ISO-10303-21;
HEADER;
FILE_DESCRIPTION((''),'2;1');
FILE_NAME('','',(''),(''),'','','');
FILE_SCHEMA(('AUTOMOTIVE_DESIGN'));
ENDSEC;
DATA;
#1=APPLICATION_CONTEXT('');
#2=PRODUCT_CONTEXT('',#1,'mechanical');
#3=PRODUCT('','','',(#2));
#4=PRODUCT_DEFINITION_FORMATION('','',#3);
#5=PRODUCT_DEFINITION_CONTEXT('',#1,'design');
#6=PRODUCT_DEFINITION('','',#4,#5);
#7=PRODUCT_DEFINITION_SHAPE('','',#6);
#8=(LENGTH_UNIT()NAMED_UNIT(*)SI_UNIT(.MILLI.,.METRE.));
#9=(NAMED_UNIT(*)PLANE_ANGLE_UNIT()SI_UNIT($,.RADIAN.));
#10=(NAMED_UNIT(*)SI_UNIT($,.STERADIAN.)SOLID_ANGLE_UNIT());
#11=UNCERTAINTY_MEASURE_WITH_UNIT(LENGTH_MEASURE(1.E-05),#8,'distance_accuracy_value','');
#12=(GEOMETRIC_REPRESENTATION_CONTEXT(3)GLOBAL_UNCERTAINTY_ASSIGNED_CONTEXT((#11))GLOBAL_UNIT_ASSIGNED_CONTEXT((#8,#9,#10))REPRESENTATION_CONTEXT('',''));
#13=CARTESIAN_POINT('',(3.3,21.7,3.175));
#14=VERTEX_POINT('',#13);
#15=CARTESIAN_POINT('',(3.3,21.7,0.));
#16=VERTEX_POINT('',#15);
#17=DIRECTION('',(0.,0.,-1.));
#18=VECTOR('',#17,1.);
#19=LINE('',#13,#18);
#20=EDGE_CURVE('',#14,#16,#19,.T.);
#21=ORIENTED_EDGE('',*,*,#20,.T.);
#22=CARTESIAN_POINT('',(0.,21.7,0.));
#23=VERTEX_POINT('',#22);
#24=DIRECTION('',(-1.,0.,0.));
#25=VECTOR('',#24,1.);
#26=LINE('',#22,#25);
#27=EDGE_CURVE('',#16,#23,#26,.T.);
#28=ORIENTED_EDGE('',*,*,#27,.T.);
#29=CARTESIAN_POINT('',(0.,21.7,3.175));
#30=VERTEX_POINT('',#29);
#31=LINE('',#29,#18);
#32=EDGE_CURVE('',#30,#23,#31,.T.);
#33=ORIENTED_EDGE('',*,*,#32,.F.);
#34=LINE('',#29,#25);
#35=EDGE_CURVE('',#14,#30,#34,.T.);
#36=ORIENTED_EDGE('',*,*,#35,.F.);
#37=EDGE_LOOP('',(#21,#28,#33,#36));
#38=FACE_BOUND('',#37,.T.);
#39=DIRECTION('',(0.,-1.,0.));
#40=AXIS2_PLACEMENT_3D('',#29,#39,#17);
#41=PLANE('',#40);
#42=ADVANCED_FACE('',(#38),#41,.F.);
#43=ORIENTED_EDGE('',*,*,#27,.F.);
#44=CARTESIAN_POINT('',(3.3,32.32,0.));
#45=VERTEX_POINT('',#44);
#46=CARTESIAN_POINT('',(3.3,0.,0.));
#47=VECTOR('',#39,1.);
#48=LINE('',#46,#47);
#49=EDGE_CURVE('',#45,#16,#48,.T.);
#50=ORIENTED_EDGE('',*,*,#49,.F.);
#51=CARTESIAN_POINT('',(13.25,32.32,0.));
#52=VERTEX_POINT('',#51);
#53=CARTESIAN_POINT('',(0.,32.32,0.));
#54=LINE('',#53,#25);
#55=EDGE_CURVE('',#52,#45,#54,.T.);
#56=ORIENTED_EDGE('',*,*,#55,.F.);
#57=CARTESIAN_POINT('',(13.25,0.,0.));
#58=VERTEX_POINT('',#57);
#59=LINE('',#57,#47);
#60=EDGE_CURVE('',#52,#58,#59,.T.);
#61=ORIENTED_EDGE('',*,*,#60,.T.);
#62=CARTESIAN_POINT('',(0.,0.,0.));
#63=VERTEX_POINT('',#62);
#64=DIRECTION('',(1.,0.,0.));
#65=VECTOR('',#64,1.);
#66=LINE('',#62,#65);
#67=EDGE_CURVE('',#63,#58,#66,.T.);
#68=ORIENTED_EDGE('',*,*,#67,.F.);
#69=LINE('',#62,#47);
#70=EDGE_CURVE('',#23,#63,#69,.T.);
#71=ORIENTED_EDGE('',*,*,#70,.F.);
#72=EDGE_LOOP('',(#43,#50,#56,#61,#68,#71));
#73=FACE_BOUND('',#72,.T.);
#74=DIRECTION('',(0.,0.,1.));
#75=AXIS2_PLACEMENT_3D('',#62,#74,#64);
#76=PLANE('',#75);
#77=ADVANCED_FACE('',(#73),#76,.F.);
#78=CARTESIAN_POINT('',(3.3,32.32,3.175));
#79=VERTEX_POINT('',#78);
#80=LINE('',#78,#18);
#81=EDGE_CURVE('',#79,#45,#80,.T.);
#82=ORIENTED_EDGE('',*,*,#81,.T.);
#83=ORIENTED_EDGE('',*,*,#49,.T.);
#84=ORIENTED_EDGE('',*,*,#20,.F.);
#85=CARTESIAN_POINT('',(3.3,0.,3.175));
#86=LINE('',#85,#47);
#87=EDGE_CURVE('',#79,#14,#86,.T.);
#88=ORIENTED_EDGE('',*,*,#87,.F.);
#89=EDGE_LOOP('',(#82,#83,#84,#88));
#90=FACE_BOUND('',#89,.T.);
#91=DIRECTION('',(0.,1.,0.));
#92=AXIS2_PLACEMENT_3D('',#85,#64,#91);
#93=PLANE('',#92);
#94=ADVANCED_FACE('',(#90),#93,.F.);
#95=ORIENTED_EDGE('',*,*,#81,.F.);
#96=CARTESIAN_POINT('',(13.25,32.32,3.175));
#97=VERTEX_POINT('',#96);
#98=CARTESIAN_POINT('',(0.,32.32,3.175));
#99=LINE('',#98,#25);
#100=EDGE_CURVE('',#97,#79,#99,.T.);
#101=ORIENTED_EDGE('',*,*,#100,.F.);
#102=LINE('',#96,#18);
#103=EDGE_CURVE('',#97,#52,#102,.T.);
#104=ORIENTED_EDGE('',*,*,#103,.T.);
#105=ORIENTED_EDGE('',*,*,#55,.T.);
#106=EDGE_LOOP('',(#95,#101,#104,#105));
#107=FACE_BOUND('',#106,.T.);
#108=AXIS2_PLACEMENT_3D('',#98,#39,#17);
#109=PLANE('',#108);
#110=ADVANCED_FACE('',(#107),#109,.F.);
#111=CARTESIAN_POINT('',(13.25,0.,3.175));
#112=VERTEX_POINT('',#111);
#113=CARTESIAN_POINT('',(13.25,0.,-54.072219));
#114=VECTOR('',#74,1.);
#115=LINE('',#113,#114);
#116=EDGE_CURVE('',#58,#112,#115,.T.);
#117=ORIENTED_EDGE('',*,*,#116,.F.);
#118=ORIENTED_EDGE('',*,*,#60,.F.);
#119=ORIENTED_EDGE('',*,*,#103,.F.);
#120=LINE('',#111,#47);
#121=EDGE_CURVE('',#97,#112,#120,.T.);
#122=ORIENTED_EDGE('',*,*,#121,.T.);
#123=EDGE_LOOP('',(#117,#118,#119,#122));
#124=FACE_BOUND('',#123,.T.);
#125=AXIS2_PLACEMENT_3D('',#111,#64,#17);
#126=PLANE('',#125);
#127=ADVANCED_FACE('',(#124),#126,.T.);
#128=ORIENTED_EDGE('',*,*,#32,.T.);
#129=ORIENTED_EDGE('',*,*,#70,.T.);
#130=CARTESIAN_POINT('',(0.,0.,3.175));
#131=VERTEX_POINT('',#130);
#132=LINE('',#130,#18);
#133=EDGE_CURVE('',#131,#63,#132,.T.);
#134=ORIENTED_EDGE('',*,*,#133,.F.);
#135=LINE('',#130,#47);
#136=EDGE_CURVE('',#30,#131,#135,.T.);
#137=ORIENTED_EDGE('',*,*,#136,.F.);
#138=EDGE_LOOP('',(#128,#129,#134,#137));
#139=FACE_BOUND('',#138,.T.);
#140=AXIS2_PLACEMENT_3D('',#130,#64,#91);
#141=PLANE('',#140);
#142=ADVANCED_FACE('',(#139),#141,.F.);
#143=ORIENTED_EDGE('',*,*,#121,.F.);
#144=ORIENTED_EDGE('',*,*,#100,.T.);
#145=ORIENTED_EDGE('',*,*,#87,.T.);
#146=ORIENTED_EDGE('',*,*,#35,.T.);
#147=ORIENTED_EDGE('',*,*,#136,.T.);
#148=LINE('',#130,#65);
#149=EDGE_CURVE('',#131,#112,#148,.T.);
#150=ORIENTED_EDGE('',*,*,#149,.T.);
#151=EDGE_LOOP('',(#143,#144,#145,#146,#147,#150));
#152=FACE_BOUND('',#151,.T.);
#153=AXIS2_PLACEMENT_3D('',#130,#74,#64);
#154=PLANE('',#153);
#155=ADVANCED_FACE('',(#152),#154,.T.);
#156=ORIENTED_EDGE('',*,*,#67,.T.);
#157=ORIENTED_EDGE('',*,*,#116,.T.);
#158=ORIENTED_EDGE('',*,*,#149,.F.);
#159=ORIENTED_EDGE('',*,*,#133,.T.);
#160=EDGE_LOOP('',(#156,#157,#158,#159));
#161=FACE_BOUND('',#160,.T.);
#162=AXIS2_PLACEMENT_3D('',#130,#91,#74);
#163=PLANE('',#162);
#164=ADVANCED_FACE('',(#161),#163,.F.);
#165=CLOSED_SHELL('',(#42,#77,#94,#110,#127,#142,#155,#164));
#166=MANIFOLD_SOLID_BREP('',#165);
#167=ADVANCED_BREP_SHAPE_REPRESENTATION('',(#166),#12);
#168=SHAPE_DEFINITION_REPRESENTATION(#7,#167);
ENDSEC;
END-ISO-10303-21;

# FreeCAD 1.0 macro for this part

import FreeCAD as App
import Part
import Sketcher
Q = App.Units.Quantity

doc = App.newDocument("Part")
body = doc.addObject("PartDesign::Body", "Body")

# Sketch on XY plane
sketch1 = body.newObject("Sketcher::SketchObject", "Sketch")
sketch1.AttachmentSupport = (doc.getObject("XY_Plane"), [""])
sketch1.MapMode = "FlatFace"
sketch1.addGeometry([
    Part.LineSegment(App.Vector(0, 21.7, 0), App.Vector(0, 0, 0)),  # 0
    Part.LineSegment(App.Vector(0, 0, 0), App.Vector(56.6, 0, 0)),  # 1
    Part.LineSegment(App.Vector(56.6, 0, 0), App.Vector(56.6, 21.7, 0)),  # 2
    Part.LineSegment(App.Vector(56.6, 21.7, 0), App.Vector(53.3, 21.7, 0)),  # 3
    Part.LineSegment(App.Vector(53.3, 21.7, 0), App.Vector(53.3, 32.32, 0)),  # 4
    Part.LineSegment(App.Vector(53.3, 32.32, 0), App.Vector(43.35, 32.32, 0)),  # 5
    Part.LineSegment(App.Vector(43.35, 32.32, 0), App.Vector(43.35, 15.66, 0)),  # 6
    Part.LineSegment(App.Vector(43.35, 15.66, 0), App.Vector(13.25, 15.66, 0)),  # 7
    Part.LineSegment(App.Vector(13.25, 15.66, 0), App.Vector(13.25, 32.32, 0)),  # 8
    Part.LineSegment(App.Vector(13.25, 32.32, 0), App.Vector(3.3, 32.32, 0)),  # 9
    Part.LineSegment(App.Vector(3.3, 32.32, 0), App.Vector(3.3, 21.7, 0)),  # 10
    Part.LineSegment(App.Vector(3.3, 21.7, 0), App.Vector(0, 21.7, 0)),  # 11
], False)
sketch1.addConstraint([
    Sketcher.Constraint("Coincident", 0, 2, 1, 1),
    Sketcher.Constraint("Coincident", 1, 2, 2, 1),
    Sketcher.Constraint("Coincident", 2, 2, 3, 1),
    Sketcher.Constraint("Coincident", 3, 2, 4, 1),
    Sketcher.Constraint("Coincident", 4, 2, 5, 1),
    Sketcher.Constraint("Coincident", 5, 2, 6, 1),
    Sketcher.Constraint("Coincident", 6, 2, 7, 1),
    Sketcher.Constraint("Coincident", 7, 2, 8, 1),
    Sketcher.Constraint("Coincident", 8, 2, 9, 1),
    Sketcher.Constraint("Coincident", 9, 2, 10, 1),
    Sketcher.Constraint("Coincident", 10, 2, 11, 1),
    Sketcher.Constraint("Coincident", 11, 2, 0, 1),
    Sketcher.Constraint("Vertical", 0),
    Sketcher.Constraint("Horizontal", 1),
    Sketcher.Constraint("Vertical", 2),
    Sketcher.Constraint("Horizontal", 3),
    Sketcher.Constraint("Vertical", 4),
    Sketcher.Constraint("Horizontal", 5),
    Sketcher.Constraint("Vertical", 6),
    Sketcher.Constraint("Horizontal", 7),
    Sketcher.Constraint("Vertical", 8),
    Sketcher.Constraint("Horizontal", 9),
    Sketcher.Constraint("Vertical", 10),
    Sketcher.Constraint("Horizontal", 11),
    Sketcher.Constraint("Coincident", 0, 2, -1, 1),
    Sketcher.Constraint("Horizontal", 5, 2, 8, 2),
    Sketcher.Constraint("Horizontal", 3, 2, 10, 2),
    Sketcher.Constraint("Equal", 5, 9),
    Sketcher.Constraint("Equal", 3, 11),
    Sketcher.Constraint("DistanceX", 1, 1, 1, 2, Q("56.6 mm")),
    Sketcher.Constraint("DistanceX", 3, 2, 3, 1, Q("3.3 mm")),
    Sketcher.Constraint("DistanceX", 7, 2, 7, 1, Q("30.1 mm")),
    Sketcher.Constraint("DistanceY", 0, 2, 0, 1, Q("21.7 mm")),
    Sketcher.Constraint("DistanceY", 4, 1, 4, 2, Q("10.62 mm")),
    Sketcher.Constraint("DistanceY", 6, 2, 6, 1, Q("16.66 mm")),
])
pad1 = body.newObject("PartDesign::Pad", "Pad")
pad1.Profile = sketch1
pad1.Length = 3.175

# Sketch on XY plane
sketch2 = body.newObject("Sketcher::SketchObject", "Sketch001")
sketch2.AttachmentSupport = (doc.getObject("XY_Plane"), [""])
sketch2.MapMode = "FlatFace"
sketch2.AttachmentOffset = App.Placement(App.Vector(0, 0, 3.175), App.Rotation())
sketch2.addGeometry([
    Part.LineSegment(App.Vector(13.25, 32.32, 0), App.Vector(13.25, 0, 0)),
    Part.LineSegment(App.Vector(13.25, 0, 0), App.Vector(56.6, 0, 0)),
    Part.LineSegment(App.Vector(56.6, 0, 0), App.Vector(56.6, 32.32, 0)),
    Part.LineSegment(App.Vector(56.6, 32.32, 0), App.Vector(13.25, 32.32, 0)),
], False)
sketch2.addConstraint([
    Sketcher.Constraint("Coincident", 0, 2, 1, 1),
    Sketcher.Constraint("Coincident", 1, 2, 2, 1),
    Sketcher.Constraint("Coincident", 2, 2, 3, 1),
    Sketcher.Constraint("Coincident", 3, 2, 0, 1),
    Sketcher.Constraint("Vertical", 0),
    Sketcher.Constraint("Horizontal", 1),
    Sketcher.Constraint("Vertical", 2),
    Sketcher.Constraint("Horizontal", 3),
    Sketcher.Constraint("PointOnObject", 0, 2, -1),
    Sketcher.Constraint("DistanceX", 1, 1, 1, 2, Q("43.35 mm")),
    Sketcher.Constraint("DistanceY", 0, 2, 0, 1, Q("32.32 mm")),
    Sketcher.Constraint("DistanceX", -1, 1, 1, 2, Q("56.6 mm")),
])
pocket1 = body.newObject("PartDesign::Pocket", "Pocket")
pocket1.Profile = sketch2
pocket1.Length = 3.175

doc.recompute()
